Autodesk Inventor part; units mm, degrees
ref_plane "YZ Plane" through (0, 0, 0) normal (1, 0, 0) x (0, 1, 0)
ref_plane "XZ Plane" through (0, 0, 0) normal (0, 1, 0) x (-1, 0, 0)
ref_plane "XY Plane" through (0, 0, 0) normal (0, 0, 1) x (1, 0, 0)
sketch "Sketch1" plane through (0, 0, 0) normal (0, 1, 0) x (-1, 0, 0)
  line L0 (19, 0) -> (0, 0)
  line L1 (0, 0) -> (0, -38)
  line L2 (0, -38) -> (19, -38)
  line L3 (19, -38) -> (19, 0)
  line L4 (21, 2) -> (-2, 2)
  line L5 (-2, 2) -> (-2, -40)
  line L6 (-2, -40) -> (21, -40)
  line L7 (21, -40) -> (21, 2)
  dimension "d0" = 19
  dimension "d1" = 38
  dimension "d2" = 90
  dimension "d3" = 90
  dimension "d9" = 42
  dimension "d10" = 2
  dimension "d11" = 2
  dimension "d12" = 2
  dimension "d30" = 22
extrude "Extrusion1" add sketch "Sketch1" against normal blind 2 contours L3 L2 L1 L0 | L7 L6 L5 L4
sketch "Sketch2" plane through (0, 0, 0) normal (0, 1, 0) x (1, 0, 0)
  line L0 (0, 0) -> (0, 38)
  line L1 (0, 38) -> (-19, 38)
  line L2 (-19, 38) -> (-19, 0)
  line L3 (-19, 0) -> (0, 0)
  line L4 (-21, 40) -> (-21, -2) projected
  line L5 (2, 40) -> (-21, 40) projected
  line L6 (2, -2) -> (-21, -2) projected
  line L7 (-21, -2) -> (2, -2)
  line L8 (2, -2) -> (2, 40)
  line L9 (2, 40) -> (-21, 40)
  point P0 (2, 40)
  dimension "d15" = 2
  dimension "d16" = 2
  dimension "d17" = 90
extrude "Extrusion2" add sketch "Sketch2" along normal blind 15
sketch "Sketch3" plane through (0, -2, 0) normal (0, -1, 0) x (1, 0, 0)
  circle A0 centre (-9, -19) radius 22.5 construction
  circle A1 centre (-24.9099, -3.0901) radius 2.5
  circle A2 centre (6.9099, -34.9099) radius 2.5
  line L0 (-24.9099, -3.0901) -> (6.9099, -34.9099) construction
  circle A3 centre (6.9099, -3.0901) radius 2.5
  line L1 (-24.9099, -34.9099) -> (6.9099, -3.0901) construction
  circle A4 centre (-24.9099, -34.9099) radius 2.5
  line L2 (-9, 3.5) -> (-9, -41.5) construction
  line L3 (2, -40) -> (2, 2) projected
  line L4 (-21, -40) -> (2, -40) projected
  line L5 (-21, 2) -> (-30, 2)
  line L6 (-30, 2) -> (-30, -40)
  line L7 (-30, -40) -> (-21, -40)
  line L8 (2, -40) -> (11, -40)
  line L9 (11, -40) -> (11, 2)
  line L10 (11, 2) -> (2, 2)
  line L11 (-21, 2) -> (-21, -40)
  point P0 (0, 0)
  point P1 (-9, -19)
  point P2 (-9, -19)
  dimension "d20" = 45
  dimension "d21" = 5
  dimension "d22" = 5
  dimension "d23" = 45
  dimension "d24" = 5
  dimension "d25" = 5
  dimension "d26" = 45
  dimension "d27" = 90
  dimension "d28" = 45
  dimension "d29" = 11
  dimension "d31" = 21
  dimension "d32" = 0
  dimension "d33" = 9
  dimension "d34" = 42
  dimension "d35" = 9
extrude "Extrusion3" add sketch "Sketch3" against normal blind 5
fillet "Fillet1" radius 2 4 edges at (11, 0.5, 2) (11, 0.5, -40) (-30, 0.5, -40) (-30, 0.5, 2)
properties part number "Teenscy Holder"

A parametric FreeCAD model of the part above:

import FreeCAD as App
import Part
import Sketcher

V = App.Vector


def edges_at(feature, points):
    """Names of the edges that pass closest to the given points."""
    edges = feature.Shape.Edges
    near = lambda p: min(range(len(edges)), key=lambda i: edges[i].distToShape(Part.Vertex(*p))[0])
    return sorted({f"Edge{near(p) + 1}" for p in points})


def add_polygon(sketch, points):
    """Adds a closed chain of lines whose ends are joined by coincident constraints."""
    first, n = sketch.GeometryCount, len(points)
    for a, b in zip(points, points[1:] + points[:1]):
        sketch.addGeometry(Part.LineSegment(App.Vector(*a, 0), App.Vector(*b, 0)), False)
    for i in range(n):
        sketch.addConstraint(Sketcher.Constraint("Coincident", first + i, 2, first + (i + 1) % n, 1))

doc = App.newDocument("Part")
body = doc.addObject("PartDesign::Body", "Body")

# Sketch on XZ plane
sketch1 = doc.addObject("Sketcher::SketchObject", "Sketch")
body.addObject(sketch1)
sketch1.AttachmentSupport = (doc.XZ_Plane, [""])
sketch1.MapMode = "FlatFace"
add_polygon(sketch1, [(-21, -40), (-21, 2), (2, 2), (2, -40)])  # lines 0-3
sketch1.addConstraint([
    Sketcher.Constraint("Vertical", 0),
    Sketcher.Constraint("Horizontal", 1),
    Sketcher.Constraint("Vertical", 2),
    Sketcher.Constraint("Horizontal", 3),
    Sketcher.Constraint("DistanceY", 0, 1, 0, 2, 42.0),
    Sketcher.Constraint("DistanceY", -1, 1, 0, 2, 2.0),
    Sketcher.Constraint("DistanceX", -1, 1, 1, 2, 2.0),
    Sketcher.Constraint("DistanceX", 1, 1, 1, 2, 23.0),
])
pad1 = doc.addObject("PartDesign::Pad", "Pad")
body.addObject(pad1)
pad1.Profile = sketch1
pad1.Length = 2

# Sketch on XZ plane
sketch2 = doc.addObject("Sketcher::SketchObject", "Sketch001")
body.addObject(sketch2)
sketch2.AttachmentSupport = (doc.XZ_Plane, [""])
sketch2.MapMode = "FlatFace"
add_polygon(sketch2, [(2, -40), (-21, -40), (-21, 2), (2, 2)])  # lines 0-3
add_polygon(sketch2, [(0, -38), (0, 0), (-19, 0), (-19, -38)])  # lines 4-7
sketch2.addConstraint([
    Sketcher.Constraint("Horizontal", 0),
    Sketcher.Constraint("Vertical", 1),
    Sketcher.Constraint("Horizontal", 2),
    Sketcher.Constraint("Vertical", 3),
    Sketcher.Constraint("Vertical", 4),
    Sketcher.Constraint("Horizontal", 5),
    Sketcher.Constraint("Vertical", 6),
    Sketcher.Constraint("Horizontal", 7),
    Sketcher.Constraint("Coincident", 4, 2, -1, 1),
    Sketcher.Constraint("DistanceY", -1, 1, 1, 2, 2.0),
    Sketcher.Constraint("DistanceX", -1, 1, 2, 2, 2.0),
    Sketcher.Constraint("DistanceX", 1, 2, 5, 2, 2.0),
    Sketcher.Constraint("DistanceY", 0, 2, 6, 2, 2.0),
    Sketcher.Constraint("DistanceX", 0, 2, 0, 1, 23.0),
    Sketcher.Constraint("DistanceY", 1, 1, 1, 2, 42.0),
])
pad2 = doc.addObject("PartDesign::Pad", "Pad001")
body.addObject(pad2)
pad2.Profile = sketch2
pad2.Length = 15
pad2.Reversed = True

# Sketch on XZ plane
sketch3 = doc.addObject("Sketcher::SketchObject", "Sketch002")
body.addObject(sketch3)
sketch3.AttachmentSupport = (doc.XZ_Plane, [""])
sketch3.MapMode = "FlatFace"
sketch3.AttachmentOffset = App.Placement(V(0, 0, 2), App.Rotation())
add_polygon(sketch3, [(-30, -40), (-21, -40), (-21, 2), (-30, 2)])  # lines 0-3
sketch3.addGeometry(Part.Circle(V(-24.9099, -34.9099, 0), V(0, 0, 1), 2.5), False)  # 4
sketch3.addGeometry(Part.Circle(V(-24.9099, -3.0901, 0), V(0, 0, 1), 2.5), False)  # 5
add_polygon(sketch3, [(2, 2), (2, -40), (11, -40), (11, 2)])  # lines 6-9
sketch3.addGeometry(Part.Circle(V(6.9099, -34.9099, 0), V(0, 0, 1), 2.5), False)  # 10
sketch3.addGeometry(Part.Circle(V(6.9099, -3.0901, 0), V(0, 0, 1), 2.5), False)  # 11
sketch3.addConstraint([
    Sketcher.Constraint("Horizontal", 0),
    Sketcher.Constraint("Vertical", 1),
    Sketcher.Constraint("Horizontal", 2),
    Sketcher.Constraint("Vertical", 3),
    Sketcher.Constraint("Vertical", 6),
    Sketcher.Constraint("Horizontal", 7),
    Sketcher.Constraint("Vertical", 8),
    Sketcher.Constraint("Horizontal", 9),
    Sketcher.Constraint("Equal", 4, 5),
    Sketcher.Constraint("Equal", 5, 10),
    Sketcher.Constraint("Equal", 10, 11),
    Sketcher.Constraint("Horizontal", 4, 3, 10, 3),
    Sketcher.Constraint("Horizontal", 5, 3, 11, 3),
    Sketcher.Constraint("Horizontal", 3, 2, 6, 2),
    Sketcher.Constraint("Horizontal", 2, 2, 8, 2),
    Sketcher.Constraint("Vertical", 4, 3, 5, 3),
    Sketcher.Constraint("Vertical", 10, 3, 11, 3),
    Sketcher.Constraint("Equal", 2, 7),
    Sketcher.Constraint("Diameter", 4, 5.0),
    Sketcher.Constraint("DistanceX", 0, 1, 0, 2, 9.0),
    Sketcher.Constraint("DistanceY", 1, 1, 1, 2, 42.0),
    Sketcher.Constraint("DistanceX", 0, 2, -1, 1, 21.0),
    Sketcher.Constraint("DistanceX", -1, 1, 7, 2, 11.0),
    Sketcher.Constraint("DistanceY", 0, 2, -1, 1, 40.0),
    Sketcher.Constraint("DistanceX", 4, 3, -1, 1, 24.91),
    Sketcher.Constraint("DistanceY", 4, 3, -1, 1, 34.91),
    Sketcher.Constraint("DistanceY", 5, 3, -1, 1, 3.09),
    Sketcher.Constraint("DistanceX", -1, 1, 10, 3, 6.91),
])
pad3 = doc.addObject("PartDesign::Pad", "Pad002")
body.addObject(pad3)
pad3.Profile = sketch3
pad3.Length = 5
pad3.Reversed = True
doc.recompute()

fillet = doc.addObject("PartDesign::Fillet", "Fillet")
body.addObject(fillet)
fillet.Base = (pad3, edges_at(pad3, [
    (11, 0.5, 2),
    (11, 0.5, -40),
    (-30, 0.5, -40),
    (-30, 0.5, 2),
]))
fillet.Radius = 2

doc.recompute()
